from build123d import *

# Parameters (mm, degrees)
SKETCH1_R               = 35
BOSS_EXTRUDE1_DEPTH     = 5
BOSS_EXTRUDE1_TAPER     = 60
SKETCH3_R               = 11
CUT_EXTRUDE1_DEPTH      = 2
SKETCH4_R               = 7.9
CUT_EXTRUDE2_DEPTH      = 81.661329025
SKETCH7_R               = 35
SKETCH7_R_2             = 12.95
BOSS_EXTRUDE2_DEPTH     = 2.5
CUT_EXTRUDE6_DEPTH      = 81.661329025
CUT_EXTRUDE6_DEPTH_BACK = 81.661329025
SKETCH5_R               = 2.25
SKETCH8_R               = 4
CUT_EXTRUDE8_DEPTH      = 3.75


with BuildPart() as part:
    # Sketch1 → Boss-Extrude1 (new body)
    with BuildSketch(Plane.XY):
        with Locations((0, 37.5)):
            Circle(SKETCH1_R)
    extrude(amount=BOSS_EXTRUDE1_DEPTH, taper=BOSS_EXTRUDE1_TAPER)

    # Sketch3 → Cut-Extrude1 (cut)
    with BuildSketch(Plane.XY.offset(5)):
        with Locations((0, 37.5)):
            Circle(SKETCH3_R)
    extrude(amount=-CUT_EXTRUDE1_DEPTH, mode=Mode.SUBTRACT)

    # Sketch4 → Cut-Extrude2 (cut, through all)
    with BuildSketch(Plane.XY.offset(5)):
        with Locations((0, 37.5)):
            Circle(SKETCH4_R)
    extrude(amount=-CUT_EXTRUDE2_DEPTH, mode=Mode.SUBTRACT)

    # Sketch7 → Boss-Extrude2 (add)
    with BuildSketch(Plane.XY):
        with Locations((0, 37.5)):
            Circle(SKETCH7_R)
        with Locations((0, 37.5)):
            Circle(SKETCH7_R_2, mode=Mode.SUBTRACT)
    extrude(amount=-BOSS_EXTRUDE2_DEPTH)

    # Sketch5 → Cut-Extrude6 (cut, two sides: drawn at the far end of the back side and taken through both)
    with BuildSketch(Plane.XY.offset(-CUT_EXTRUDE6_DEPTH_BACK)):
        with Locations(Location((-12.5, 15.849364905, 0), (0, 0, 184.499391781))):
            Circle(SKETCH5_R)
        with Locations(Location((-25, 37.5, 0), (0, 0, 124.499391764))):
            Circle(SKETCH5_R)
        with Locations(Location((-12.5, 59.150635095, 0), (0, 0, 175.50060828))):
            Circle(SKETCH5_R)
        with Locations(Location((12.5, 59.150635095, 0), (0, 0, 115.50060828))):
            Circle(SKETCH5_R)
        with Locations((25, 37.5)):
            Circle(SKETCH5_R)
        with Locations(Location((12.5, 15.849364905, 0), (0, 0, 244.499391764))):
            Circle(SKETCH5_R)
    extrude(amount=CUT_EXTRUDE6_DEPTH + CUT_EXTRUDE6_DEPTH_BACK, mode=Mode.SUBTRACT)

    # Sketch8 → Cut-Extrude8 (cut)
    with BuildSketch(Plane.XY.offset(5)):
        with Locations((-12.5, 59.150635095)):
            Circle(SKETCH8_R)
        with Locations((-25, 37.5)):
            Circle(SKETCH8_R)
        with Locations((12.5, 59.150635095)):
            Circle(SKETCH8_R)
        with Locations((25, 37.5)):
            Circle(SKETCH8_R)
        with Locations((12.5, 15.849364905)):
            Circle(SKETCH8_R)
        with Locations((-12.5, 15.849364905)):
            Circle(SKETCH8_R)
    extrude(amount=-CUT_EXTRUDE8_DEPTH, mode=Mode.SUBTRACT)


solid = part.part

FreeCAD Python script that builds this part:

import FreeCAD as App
import Part
import Sketcher

doc = App.newDocument("Part")
body = doc.addObject("PartDesign::Body", "Body")

# Sketch on XY plane
sketch1 = body.newObject("Sketcher::SketchObject", "Sketch")
sketch1.AttachmentSupport = (doc.getObject("XY_Plane"), [""])
sketch1.MapMode = "FlatFace"
sketch1.addGeometry(Part.Circle(App.Vector(0, 38, 0), App.Vector(0, 0, 1), 35), False)
sketch1.addConstraint([
    Sketcher.Constraint("PointOnObject", 0, 3, -2),
    Sketcher.Constraint("Diameter", 0, 70.0),
    Sketcher.Constraint("DistanceY", -1, 1, 0, 3, 37.5),
])
pad1 = body.newObject("PartDesign::Pad", "Pad")
pad1.Profile = sketch1
pad1.Length = 5
pad1.TaperAngle = -60

# Sketch on XY plane
sketch2 = body.newObject("Sketcher::SketchObject", "Sketch001")
sketch2.AttachmentSupport = (doc.getObject("XY_Plane"), [""])
sketch2.MapMode = "FlatFace"
sketch2.AttachmentOffset = App.Placement(App.Vector(0, 0, 5), App.Rotation())
sketch2.addGeometry(Part.Circle(App.Vector(0, 38, 0), App.Vector(0, 0, 1), 11), False)
sketch2.addConstraint([
    Sketcher.Constraint("PointOnObject", 0, 3, -2),
    Sketcher.Constraint("Diameter", 0, 22.0),
    Sketcher.Constraint("DistanceY", -1, 1, 0, 3, 37.5),
])
pocket1 = body.newObject("PartDesign::Pocket", "Pocket")
pocket1.Profile = sketch2
pocket1.Length = 2

# Sketch on XY plane
sketch3 = body.newObject("Sketcher::SketchObject", "Sketch002")
sketch3.AttachmentSupport = (doc.getObject("XY_Plane"), [""])
sketch3.MapMode = "FlatFace"
sketch3.AttachmentOffset = App.Placement(App.Vector(0, 0, 5), App.Rotation())
sketch3.addGeometry(Part.Circle(App.Vector(0, 38, 0), App.Vector(0, 0, 1), 8), False)
sketch3.addConstraint([
    Sketcher.Constraint("PointOnObject", 0, 3, -2),
    Sketcher.Constraint("Diameter", 0, 15.8),
    Sketcher.Constraint("DistanceY", -1, 1, 0, 3, 37.5),
])
pocket2 = body.newObject("PartDesign::Pocket", "Pocket001")
pocket2.Profile = sketch3
pocket2.Type = "ThroughAll"

# Sketch on XY plane
sketch4 = body.newObject("Sketcher::SketchObject", "Sketch003")
sketch4.AttachmentSupport = (doc.getObject("XY_Plane"), [""])
sketch4.MapMode = "FlatFace"
sketch4.addGeometry([
    Part.Circle(App.Vector(0, 38, 0), App.Vector(0, 0, 1), 35),
    Part.Circle(App.Vector(0, 38, 0), App.Vector(0, 0, 1), 13),
], False)
sketch4.addConstraint([
    Sketcher.Constraint("Coincident", 1, 3, 0, 3),
    Sketcher.Constraint("PointOnObject", 0, 3, -2),
    Sketcher.Constraint("Diameter", 0, 70.0),
    Sketcher.Constraint("Diameter", 1, 25.9),
    Sketcher.Constraint("DistanceY", -1, 1, 0, 3, 37.5),
])
pad2 = body.newObject("PartDesign::Pad", "Pad001")
pad2.Profile = sketch4
pad2.Length = 2.5
pad2.Reversed = True

# Sketch on XY plane
sketch5 = body.newObject("Sketcher::SketchObject", "Sketch004")
sketch5.AttachmentSupport = (doc.getObject("XY_Plane"), [""])
sketch5.MapMode = "FlatFace"
sketch5.addGeometry([
    Part.Circle(App.Vector(-12.5, 15.8, 0), App.Vector(0, 0, 1), 2.2),  # 0
    Part.Circle(App.Vector(-25, 37.5, 0), App.Vector(0, 0, 1), 2.2),  # 1
    Part.Circle(App.Vector(-12.5, 59.2, 0), App.Vector(0, 0, 1), 2.2),  # 2
    Part.Circle(App.Vector(12.5, 59.2, 0), App.Vector(0, 0, 1), 2.2),  # 3
    Part.Circle(App.Vector(25, 37.5, 0), App.Vector(0, 0, 1), 2.2),  # 4
    Part.Circle(App.Vector(12.5, 15.8, 0), App.Vector(0, 0, 1), 2.2),  # 5
], False)
sketch5.addConstraint([
    Sketcher.Constraint("Equal", 0, 1),
    Sketcher.Constraint("Equal", 1, 2),
    Sketcher.Constraint("Equal", 2, 3),
    Sketcher.Constraint("Equal", 3, 4),
    Sketcher.Constraint("Equal", 4, 5),
    Sketcher.Constraint("Symmetric", 2, 3, 3, 3, -2),
    Sketcher.Constraint("Symmetric", 1, 3, 4, 3, -2),
    Sketcher.Constraint("Symmetric", 0, 3, 5, 3, -2),
    Sketcher.Constraint("Vertical", 0, 3, 2, 3),
    Sketcher.Constraint("Diameter", 0, 4.5),
    Sketcher.Constraint("DistanceX", 1, 3, -1, 1, 25.0),
    Sketcher.Constraint("DistanceX", 2, 3, 3, 3, 25.0),
    Sketcher.Constraint("DistanceY", -1, 1, 1, 3, 37.5),
    Sketcher.Constraint("DistanceY", 0, 3, 2, 3, 43.30127),
    Sketcher.Constraint("DistanceY", -1, 1, 0, 3, 15.849365),
])
pocket3 = body.newObject("PartDesign::Pocket", "Pocket002")
pocket3.Profile = sketch5
pocket3.Type = "ThroughAll"
pocket3.Midplane = True

# Sketch on XY plane
sketch6 = body.newObject("Sketcher::SketchObject", "Sketch005")
sketch6.AttachmentSupport = (doc.getObject("XY_Plane"), [""])
sketch6.MapMode = "FlatFace"
sketch6.AttachmentOffset = App.Placement(App.Vector(0, 0, 5), App.Rotation())
sketch6.addGeometry([
    Part.Circle(App.Vector(-12.5, 59.2, 0), App.Vector(0, 0, 1), 4),  # 0
    Part.Circle(App.Vector(-25, 37.5, 0), App.Vector(0, 0, 1), 4),  # 1
    Part.Circle(App.Vector(12.5, 59.2, 0), App.Vector(0, 0, 1), 4),  # 2
    Part.Circle(App.Vector(25, 37.5, 0), App.Vector(0, 0, 1), 4),  # 3
    Part.Circle(App.Vector(12.5, 15.8, 0), App.Vector(0, 0, 1), 4),  # 4
    Part.Circle(App.Vector(-12.5, 15.8, 0), App.Vector(0, 0, 1), 4),  # 5
], False)
sketch6.addConstraint([
    Sketcher.Constraint("Equal", 0, 1),
    Sketcher.Constraint("Equal", 1, 2),
    Sketcher.Constraint("Equal", 2, 3),
    Sketcher.Constraint("Equal", 3, 4),
    Sketcher.Constraint("Equal", 4, 5),
    Sketcher.Constraint("Symmetric", 0, 3, 2, 3, -2),
    Sketcher.Constraint("Symmetric", 1, 3, 3, 3, -2),
    Sketcher.Constraint("Symmetric", 4, 3, 5, 3, -2),
    Sketcher.Constraint("Vertical", 2, 3, 4, 3),
    Sketcher.Constraint("Diameter", 0, 8.0),
    Sketcher.Constraint("DistanceX", 1, 3, -1, 1, 25.0),
    Sketcher.Constraint("DistanceX", 0, 3, 2, 3, 25.0),
    Sketcher.Constraint("DistanceY", -1, 1, 1, 3, 37.5),
    Sketcher.Constraint("DistanceY", 4, 3, 2, 3, 43.30127),
    Sketcher.Constraint("DistanceY", -1, 1, 0, 3, 59.150635),
])
pocket4 = body.newObject("PartDesign::Pocket", "Pocket003")
pocket4.Profile = sketch6
pocket4.Length = 3.75

doc.recompute()
